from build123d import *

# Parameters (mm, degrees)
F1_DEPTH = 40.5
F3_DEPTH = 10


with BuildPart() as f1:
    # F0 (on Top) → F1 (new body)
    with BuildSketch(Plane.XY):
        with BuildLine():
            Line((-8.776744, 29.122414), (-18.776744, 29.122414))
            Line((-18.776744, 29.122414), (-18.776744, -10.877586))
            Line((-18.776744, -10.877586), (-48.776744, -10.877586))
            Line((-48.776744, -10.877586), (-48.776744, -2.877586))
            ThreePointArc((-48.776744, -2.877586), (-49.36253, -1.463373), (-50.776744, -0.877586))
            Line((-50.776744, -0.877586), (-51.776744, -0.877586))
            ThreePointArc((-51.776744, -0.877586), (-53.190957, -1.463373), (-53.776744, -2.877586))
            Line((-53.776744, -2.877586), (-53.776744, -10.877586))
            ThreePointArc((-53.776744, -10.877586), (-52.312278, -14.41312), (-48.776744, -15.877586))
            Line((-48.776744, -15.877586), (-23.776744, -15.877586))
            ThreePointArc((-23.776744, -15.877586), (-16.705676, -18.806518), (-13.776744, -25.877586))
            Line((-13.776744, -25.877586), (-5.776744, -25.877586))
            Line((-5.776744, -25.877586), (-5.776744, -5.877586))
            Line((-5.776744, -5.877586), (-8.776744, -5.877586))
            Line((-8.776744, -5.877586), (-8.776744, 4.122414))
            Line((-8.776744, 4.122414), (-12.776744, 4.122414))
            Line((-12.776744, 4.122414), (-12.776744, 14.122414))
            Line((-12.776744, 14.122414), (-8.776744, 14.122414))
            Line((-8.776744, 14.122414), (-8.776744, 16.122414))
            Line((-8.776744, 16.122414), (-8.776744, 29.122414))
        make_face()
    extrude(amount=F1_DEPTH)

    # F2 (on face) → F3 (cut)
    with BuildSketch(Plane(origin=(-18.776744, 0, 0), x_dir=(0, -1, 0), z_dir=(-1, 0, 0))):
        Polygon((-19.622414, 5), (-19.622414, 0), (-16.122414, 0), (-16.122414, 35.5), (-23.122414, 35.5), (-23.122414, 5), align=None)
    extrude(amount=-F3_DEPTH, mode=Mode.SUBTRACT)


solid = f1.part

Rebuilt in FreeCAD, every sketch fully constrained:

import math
import FreeCAD as App
import Part
import Sketcher
from FreeCAD import Vector
Q = App.Units.Quantity


def add_polygon(sketch, points):
    """Adds a closed chain of lines whose ends are joined by coincident constraints."""
    first, n = sketch.GeometryCount, len(points)
    for a, b in zip(points, points[1:] + points[:1]):
        sketch.addGeometry(Part.LineSegment(App.Vector(*a, 0), App.Vector(*b, 0)), False)
    for i in range(n):
        sketch.addConstraint(Sketcher.Constraint("Coincident", first + i, 2, first + (i + 1) % n, 1))

doc = App.newDocument("Part")
body = doc.addObject("PartDesign::Body", "Body")

# Sketch on XY plane
sketch1 = doc.addObject("Sketcher::SketchObject", "Sketch")
body.addObject(sketch1)
sketch1.AttachmentSupport = (doc.XY_Plane, [""])
sketch1.MapMode = "FlatFace"
sketch1.addGeometry(Part.LineSegment(Vector(-8.8, 29.1, 0), Vector(-18.8, 29.1, 0)), False)
sketch1.addGeometry(Part.LineSegment(Vector(-18.8, 29.1, 0), Vector(-18.8, -10.9, 0)), False)
sketch1.addGeometry(Part.LineSegment(Vector(-18.8, -10.9, 0), Vector(-48.8, -10.9, 0)), False)
sketch1.addGeometry(Part.LineSegment(Vector(-48.8, -10.9, 0), Vector(-48.8, -2.9, 0)), False)
sketch1.addGeometry(Part.ArcOfCircle(Part.Circle(Vector(-50.8, -2.9, 0), Vector(0, 0, 1), 2), math.radians(0), math.radians(90)), False)
sketch1.addGeometry(Part.LineSegment(Vector(-50.8, -0.9, 0), Vector(-51.8, -0.9, 0)), False)
sketch1.addGeometry(Part.ArcOfCircle(Part.Circle(Vector(-51.8, -2.9, 0), Vector(0, 0, 1), 2), math.radians(90), math.radians(180)), False)
sketch1.addGeometry(Part.LineSegment(Vector(-53.8, -2.9, 0), Vector(-53.8, -10.9, 0)), False)
sketch1.addGeometry(Part.ArcOfCircle(Part.Circle(Vector(-48.8, -10.9, 0), Vector(0, 0, 1), 5), math.radians(180), math.radians(270)), False)
sketch1.addGeometry(Part.LineSegment(Vector(-48.8, -15.9, 0), Vector(-23.8, -15.9, 0)), False)
sketch1.addGeometry(Part.ArcOfCircle(Part.Circle(Vector(-23.8, -25.9, 0), Vector(0, 0, 1), 10), math.radians(0), math.radians(90)), False)
sketch1.addGeometry(Part.LineSegment(Vector(-13.8, -25.9, 0), Vector(-5.8, -25.9, 0)), False)
sketch1.addGeometry(Part.LineSegment(Vector(-5.8, -25.9, 0), Vector(-5.8, -5.9, 0)), False)
sketch1.addGeometry(Part.LineSegment(Vector(-5.8, -5.9, 0), Vector(-8.8, -5.9, 0)), False)
sketch1.addGeometry(Part.LineSegment(Vector(-8.8, -5.9, 0), Vector(-8.8, 4.1, 0)), False)
sketch1.addGeometry(Part.LineSegment(Vector(-8.8, 4.1, 0), Vector(-12.8, 4.1, 0)), False)
sketch1.addGeometry(Part.LineSegment(Vector(-12.8, 4.1, 0), Vector(-12.8, 14.1, 0)), False)
sketch1.addGeometry(Part.LineSegment(Vector(-12.8, 14.1, 0), Vector(-8.8, 14.1, 0)), False)
sketch1.addGeometry(Part.LineSegment(Vector(-8.8, 14.1, 0), Vector(-8.8, 29.1, 0)), False)
sketch1.addConstraint(Sketcher.Constraint("Coincident", 0, 2, 1, 1))
sketch1.addConstraint(Sketcher.Constraint("Coincident", 1, 2, 2, 1))
sketch1.addConstraint(Sketcher.Constraint("Coincident", 2, 2, 3, 1))
sketch1.addConstraint(Sketcher.Constraint("Tangent", 3, 2, 4, 1))
sketch1.addConstraint(Sketcher.Constraint("Tangent", 4, 2, 5, 1))
sketch1.addConstraint(Sketcher.Constraint("Tangent", 5, 2, 6, 1))
sketch1.addConstraint(Sketcher.Constraint("Tangent", 6, 2, 7, 1))
sketch1.addConstraint(Sketcher.Constraint("Tangent", 7, 2, 8, 1))
sketch1.addConstraint(Sketcher.Constraint("Tangent", 8, 2, 9, 1))
sketch1.addConstraint(Sketcher.Constraint("Tangent", 9, 2, 10, 2))
sketch1.addConstraint(Sketcher.Constraint("Coincident", 10, 1, 11, 1))
sketch1.addConstraint(Sketcher.Constraint("Coincident", 11, 2, 12, 1))
sketch1.addConstraint(Sketcher.Constraint("Coincident", 12, 2, 13, 1))
sketch1.addConstraint(Sketcher.Constraint("Coincident", 13, 2, 14, 1))
sketch1.addConstraint(Sketcher.Constraint("Coincident", 14, 2, 15, 1))
sketch1.addConstraint(Sketcher.Constraint("Coincident", 15, 2, 16, 1))
sketch1.addConstraint(Sketcher.Constraint("Coincident", 16, 2, 17, 1))
sketch1.addConstraint(Sketcher.Constraint("Coincident", 17, 2, 18, 1))
sketch1.addConstraint(Sketcher.Constraint("Coincident", 18, 2, 0, 1))
sketch1.addConstraint(Sketcher.Constraint("Horizontal", 0))
sketch1.addConstraint(Sketcher.Constraint("Vertical", 1))
sketch1.addConstraint(Sketcher.Constraint("Horizontal", 2))
sketch1.addConstraint(Sketcher.Constraint("Vertical", 3))
sketch1.addConstraint(Sketcher.Constraint("Horizontal", 5))
sketch1.addConstraint(Sketcher.Constraint("Vertical", 7))
sketch1.addConstraint(Sketcher.Constraint("Horizontal", 9))
sketch1.addConstraint(Sketcher.Constraint("Horizontal", 11))
sketch1.addConstraint(Sketcher.Constraint("Vertical", 12))
sketch1.addConstraint(Sketcher.Constraint("Horizontal", 13))
sketch1.addConstraint(Sketcher.Constraint("Vertical", 14))
sketch1.addConstraint(Sketcher.Constraint("Horizontal", 15))
sketch1.addConstraint(Sketcher.Constraint("Vertical", 16))
sketch1.addConstraint(Sketcher.Constraint("Horizontal", 17))
sketch1.addConstraint(Sketcher.Constraint("Vertical", 18))
sketch1.addConstraint(Sketcher.Constraint("Coincident", 2, 2, 8, 3))
sketch1.addConstraint(Sketcher.Constraint("Equal", 4, 6))
sketch1.addConstraint(Sketcher.Constraint("Vertical", 14, 2, 17, 2))
sketch1.addConstraint(Sketcher.Constraint("Equal", 11, 3))
sketch1.addConstraint(Sketcher.Constraint("Equal", 0, 14))
sketch1.addConstraint(Sketcher.Constraint("Equal", 14, 16))
sketch1.addConstraint(Sketcher.Constraint("Radius", 4, Q("2 mm")))
sketch1.addConstraint(Sketcher.Constraint("Radius", 8, Q("5 mm")))
sketch1.addConstraint(Sketcher.Constraint("Radius", 10, Q("9.999999 mm")))
sketch1.addConstraint(Sketcher.Constraint("DistanceX", 0, 2, 0, 1, Q("10 mm")))
sketch1.addConstraint(Sketcher.Constraint("DistanceX", 2, 2, 2, 1, Q("30 mm")))
sketch1.addConstraint(Sketcher.Constraint("DistanceX", 9, 1, 9, 2, Q("25 mm")))
sketch1.addConstraint(Sketcher.Constraint("DistanceX", 11, 1, 11, 2, Q("8 mm")))
sketch1.addConstraint(Sketcher.Constraint("DistanceX", 15, 2, 15, 1, Q("4 mm")))
sketch1.addConstraint(Sketcher.Constraint("DistanceY", 1, 2, 1, 1, Q("40 mm")))
sketch1.addConstraint(Sketcher.Constraint("DistanceY", 12, 1, 12, 2, Q("20 mm")))
sketch1.addConstraint(Sketcher.Constraint("DistanceY", 18, 1, 18, 2, Q("15 mm")))
sketch1.addConstraint(Sketcher.Constraint("DistanceX", 4, 3, -1, 1, Q("50.776744 mm")))
sketch1.addConstraint(Sketcher.Constraint("DistanceY", 4, 3, -1, 1, Q("2.877586 mm")))
pad1 = doc.addObject("PartDesign::Pad", "Pad")
body.addObject(pad1)
pad1.Profile = sketch1
pad1.Length = 40.5

# Sketch on YZ plane
sketch2 = doc.addObject("Sketcher::SketchObject", "Sketch001")
body.addObject(sketch2)
sketch2.AttachmentSupport = (doc.YZ_Plane, [""])
sketch2.MapMode = "FlatFace"
sketch2.AttachmentOffset = App.Placement(Vector(0, 0, -18.776744), App.Rotation())
add_polygon(sketch2, [(19.6, 5), (19.6, 0), (16.1, 0), (16.1, 35.5), (23.1, 35.5), (23.1, 5)])  # lines 0-5
sketch2.addConstraint(Sketcher.Constraint("Vertical", 0))
sketch2.addConstraint(Sketcher.Constraint("Horizontal", 1))
sketch2.addConstraint(Sketcher.Constraint("Vertical", 2))
sketch2.addConstraint(Sketcher.Constraint("Horizontal", 3))
sketch2.addConstraint(Sketcher.Constraint("Vertical", 4))
sketch2.addConstraint(Sketcher.Constraint("Horizontal", 5))
sketch2.addConstraint(Sketcher.Constraint("PointOnObject", 0, 2, -1))
sketch2.addConstraint(Sketcher.Constraint("Equal", 1, 5))
sketch2.addConstraint(Sketcher.Constraint("DistanceX", 3, 1, 3, 2, Q("7 mm")))
sketch2.addConstraint(Sketcher.Constraint("DistanceY", 0, 2, 0, 1, Q("5 mm")))
sketch2.addConstraint(Sketcher.Constraint("DistanceY", 2, 1, 2, 2, Q("35.5 mm")))
sketch2.addConstraint(Sketcher.Constraint("DistanceX", -1, 1, 0, 2, Q("19.622414 mm")))
pocket1 = doc.addObject("PartDesign::Pocket", "Pocket")
body.addObject(pocket1)
pocket1.Profile = sketch2
pocket1.Length = 10
pocket1.Reversed = True

doc.recompute()
